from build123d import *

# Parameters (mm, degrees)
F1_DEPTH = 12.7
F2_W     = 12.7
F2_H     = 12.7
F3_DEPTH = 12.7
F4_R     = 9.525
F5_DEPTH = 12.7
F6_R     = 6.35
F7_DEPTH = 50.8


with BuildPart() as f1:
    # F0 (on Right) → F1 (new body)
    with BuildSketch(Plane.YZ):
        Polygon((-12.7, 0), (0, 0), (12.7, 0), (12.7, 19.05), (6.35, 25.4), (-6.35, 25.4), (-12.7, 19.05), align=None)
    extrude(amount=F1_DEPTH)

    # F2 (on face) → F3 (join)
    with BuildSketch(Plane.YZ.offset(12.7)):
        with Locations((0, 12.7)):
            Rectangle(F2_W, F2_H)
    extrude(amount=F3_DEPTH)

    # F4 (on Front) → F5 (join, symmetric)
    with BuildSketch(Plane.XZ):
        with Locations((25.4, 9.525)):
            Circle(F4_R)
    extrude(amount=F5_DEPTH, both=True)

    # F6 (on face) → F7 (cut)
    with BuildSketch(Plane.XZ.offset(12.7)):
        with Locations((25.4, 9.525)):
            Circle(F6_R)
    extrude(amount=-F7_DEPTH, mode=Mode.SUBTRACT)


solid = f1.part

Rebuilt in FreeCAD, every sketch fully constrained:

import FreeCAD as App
import Part
import Sketcher
Q = App.Units.Quantity


def add_polygon(sketch, points):
    """Adds a closed chain of lines whose ends are joined by coincident constraints."""
    first, n = sketch.GeometryCount, len(points)
    for a, b in zip(points, points[1:] + points[:1]):
        sketch.addGeometry(Part.LineSegment(App.Vector(*a, 0), App.Vector(*b, 0)), False)
    for i in range(n):
        sketch.addConstraint(Sketcher.Constraint("Coincident", first + i, 2, first + (i + 1) % n, 1))

doc = App.newDocument("Part")
params = doc.addObject("Spreadsheet::Sheet", "Params")
for row, (alias, value) in enumerate([
    ("sketch1_width", "1 in"),
    ("sketch1_width2", "0.5 in"),
    ("pad1_length", "0.5 in"),
    ("sketch2_width", "0.5 in"),
    ("pad2_length", "0.5 in"),
    ("sketch3_diameter", "0.75 in"),
    ("pad3_length", "1 in"),
    ("sketch4_diameter", "0.5 in"),
    ("pocket1_length", "2 in"),
], start=1):
    params.set(f"A{row}", alias)
    params.set(f"B{row}", "=" + value)
    params.setAlias(f"B{row}", alias)

body = doc.addObject("PartDesign::Body", "Body")

# Sketch on YZ plane
sketch1 = doc.addObject("Sketcher::SketchObject", "Sketch")
body.addObject(sketch1)
sketch1.AttachmentSupport = (doc.YZ_Plane, [""])
sketch1.MapMode = "FlatFace"
add_polygon(sketch1, [(-13, 0), (13, 0), (13, 19), (6, 25), (-6, 25), (-13, 19)])  # lines 0-5
sketch1.addConstraint([
    Sketcher.Constraint("Horizontal", 0),
    Sketcher.Constraint("Vertical", 1),
    Sketcher.Constraint("Horizontal", 3),
    Sketcher.Constraint("Vertical", 5),
    Sketcher.Constraint("Symmetric", 0, 2, 5, 2, -1, 1),
    Sketcher.Constraint("Perpendicular", 2, 4),
    Sketcher.Constraint("Horizontal", 1, 2, 4, 2),
    Sketcher.Constraint("Equal", 2, 4),
    Sketcher.Constraint("DistanceX", 0, 1, 0, 2, Q("1 in")),
    Sketcher.Constraint("DistanceX", 3, 2, 3, 1, Q("0.5 in")),
    Sketcher.Constraint("DistanceY", -1, 1, 2, 2, Q("1 in")),
])
sketch1.setExpression("Constraints[14]", "Params.sketch1_width")
sketch1.setExpression("Constraints[15]", "Params.sketch1_width2")
pad1 = doc.addObject("PartDesign::Pad", "Pad")
body.addObject(pad1)
pad1.Profile = sketch1
pad1.setExpression("Length", "Params.pad1_length")

# Sketch on YZ plane
sketch2 = doc.addObject("Sketcher::SketchObject", "Sketch001")
body.addObject(sketch2)
sketch2.AttachmentSupport = (doc.YZ_Plane, [""])
sketch2.MapMode = "FlatFace"
sketch2.AttachmentOffset = App.Placement(App.Vector(0, 0, 0.5 * 25.4), App.Rotation())
add_polygon(sketch2, [(-6, 19), (-6, 6), (6, 6), (6, 19)])  # lines 0-3
sketch2.addConstraint([
    Sketcher.Constraint("Vertical", 0),
    Sketcher.Constraint("Horizontal", 1),
    Sketcher.Constraint("Vertical", 2),
    Sketcher.Constraint("Horizontal", 3),
    Sketcher.Constraint("Equal", 3, 0),
    Sketcher.Constraint("DistanceX", 1, 1, 1, 2, Q("0.5 in")),
    Sketcher.Constraint("DistanceX", 0, 2, -1, 1, Q("0.25 in")),
    Sketcher.Constraint("DistanceY", -1, 1, 0, 2, Q("0.25 in")),
])
sketch2.setExpression("Constraints[9]", "Params.sketch2_width")
pad2 = doc.addObject("PartDesign::Pad", "Pad001")
body.addObject(pad2)
pad2.Profile = sketch2
pad2.setExpression("Length", "Params.pad2_length")

# Sketch on XZ plane
sketch3 = doc.addObject("Sketcher::SketchObject", "Sketch002")
body.addObject(sketch3)
sketch3.AttachmentSupport = (doc.XZ_Plane, [""])
sketch3.MapMode = "FlatFace"
sketch3.addGeometry(Part.Circle(App.Vector(25, 10, 0), App.Vector(0, 0, 1), 10), False)
sketch3.addConstraint([
    Sketcher.Constraint("Diameter", 0, Q("0.75 in")),
    Sketcher.Constraint("DistanceX", -1, 1, 0, 3, Q("1 in")),
    Sketcher.Constraint("DistanceY", -1, 1, 0, 3, Q("0.375 in")),
])
sketch3.setExpression("Constraints[0]", "Params.sketch3_diameter")
pad3 = doc.addObject("PartDesign::Pad", "Pad002")
body.addObject(pad3)
pad3.Profile = sketch3
pad3.setExpression("Length", "Params.pad3_length")
pad3.Midplane = True

# Sketch on XZ plane
sketch4 = doc.addObject("Sketcher::SketchObject", "Sketch003")
body.addObject(sketch4)
sketch4.AttachmentSupport = (doc.XZ_Plane, [""])
sketch4.MapMode = "FlatFace"
sketch4.AttachmentOffset = App.Placement(App.Vector(0, 0, 0.5 * 25.4), App.Rotation())
sketch4.addGeometry(Part.Circle(App.Vector(25, 10, 0), App.Vector(0, 0, 1), 6), False)
sketch4.addConstraint([
    Sketcher.Constraint("Diameter", 0, Q("0.5 in")),
    Sketcher.Constraint("DistanceX", -1, 1, 0, 3, Q("1 in")),
    Sketcher.Constraint("DistanceY", -1, 1, 0, 3, Q("0.375 in")),
])
sketch4.setExpression("Constraints[0]", "Params.sketch4_diameter")
pocket1 = doc.addObject("PartDesign::Pocket", "Pocket")
body.addObject(pocket1)
pocket1.Profile = sketch4
pocket1.setExpression("Length", "Params.pocket1_length")

doc.recompute()
